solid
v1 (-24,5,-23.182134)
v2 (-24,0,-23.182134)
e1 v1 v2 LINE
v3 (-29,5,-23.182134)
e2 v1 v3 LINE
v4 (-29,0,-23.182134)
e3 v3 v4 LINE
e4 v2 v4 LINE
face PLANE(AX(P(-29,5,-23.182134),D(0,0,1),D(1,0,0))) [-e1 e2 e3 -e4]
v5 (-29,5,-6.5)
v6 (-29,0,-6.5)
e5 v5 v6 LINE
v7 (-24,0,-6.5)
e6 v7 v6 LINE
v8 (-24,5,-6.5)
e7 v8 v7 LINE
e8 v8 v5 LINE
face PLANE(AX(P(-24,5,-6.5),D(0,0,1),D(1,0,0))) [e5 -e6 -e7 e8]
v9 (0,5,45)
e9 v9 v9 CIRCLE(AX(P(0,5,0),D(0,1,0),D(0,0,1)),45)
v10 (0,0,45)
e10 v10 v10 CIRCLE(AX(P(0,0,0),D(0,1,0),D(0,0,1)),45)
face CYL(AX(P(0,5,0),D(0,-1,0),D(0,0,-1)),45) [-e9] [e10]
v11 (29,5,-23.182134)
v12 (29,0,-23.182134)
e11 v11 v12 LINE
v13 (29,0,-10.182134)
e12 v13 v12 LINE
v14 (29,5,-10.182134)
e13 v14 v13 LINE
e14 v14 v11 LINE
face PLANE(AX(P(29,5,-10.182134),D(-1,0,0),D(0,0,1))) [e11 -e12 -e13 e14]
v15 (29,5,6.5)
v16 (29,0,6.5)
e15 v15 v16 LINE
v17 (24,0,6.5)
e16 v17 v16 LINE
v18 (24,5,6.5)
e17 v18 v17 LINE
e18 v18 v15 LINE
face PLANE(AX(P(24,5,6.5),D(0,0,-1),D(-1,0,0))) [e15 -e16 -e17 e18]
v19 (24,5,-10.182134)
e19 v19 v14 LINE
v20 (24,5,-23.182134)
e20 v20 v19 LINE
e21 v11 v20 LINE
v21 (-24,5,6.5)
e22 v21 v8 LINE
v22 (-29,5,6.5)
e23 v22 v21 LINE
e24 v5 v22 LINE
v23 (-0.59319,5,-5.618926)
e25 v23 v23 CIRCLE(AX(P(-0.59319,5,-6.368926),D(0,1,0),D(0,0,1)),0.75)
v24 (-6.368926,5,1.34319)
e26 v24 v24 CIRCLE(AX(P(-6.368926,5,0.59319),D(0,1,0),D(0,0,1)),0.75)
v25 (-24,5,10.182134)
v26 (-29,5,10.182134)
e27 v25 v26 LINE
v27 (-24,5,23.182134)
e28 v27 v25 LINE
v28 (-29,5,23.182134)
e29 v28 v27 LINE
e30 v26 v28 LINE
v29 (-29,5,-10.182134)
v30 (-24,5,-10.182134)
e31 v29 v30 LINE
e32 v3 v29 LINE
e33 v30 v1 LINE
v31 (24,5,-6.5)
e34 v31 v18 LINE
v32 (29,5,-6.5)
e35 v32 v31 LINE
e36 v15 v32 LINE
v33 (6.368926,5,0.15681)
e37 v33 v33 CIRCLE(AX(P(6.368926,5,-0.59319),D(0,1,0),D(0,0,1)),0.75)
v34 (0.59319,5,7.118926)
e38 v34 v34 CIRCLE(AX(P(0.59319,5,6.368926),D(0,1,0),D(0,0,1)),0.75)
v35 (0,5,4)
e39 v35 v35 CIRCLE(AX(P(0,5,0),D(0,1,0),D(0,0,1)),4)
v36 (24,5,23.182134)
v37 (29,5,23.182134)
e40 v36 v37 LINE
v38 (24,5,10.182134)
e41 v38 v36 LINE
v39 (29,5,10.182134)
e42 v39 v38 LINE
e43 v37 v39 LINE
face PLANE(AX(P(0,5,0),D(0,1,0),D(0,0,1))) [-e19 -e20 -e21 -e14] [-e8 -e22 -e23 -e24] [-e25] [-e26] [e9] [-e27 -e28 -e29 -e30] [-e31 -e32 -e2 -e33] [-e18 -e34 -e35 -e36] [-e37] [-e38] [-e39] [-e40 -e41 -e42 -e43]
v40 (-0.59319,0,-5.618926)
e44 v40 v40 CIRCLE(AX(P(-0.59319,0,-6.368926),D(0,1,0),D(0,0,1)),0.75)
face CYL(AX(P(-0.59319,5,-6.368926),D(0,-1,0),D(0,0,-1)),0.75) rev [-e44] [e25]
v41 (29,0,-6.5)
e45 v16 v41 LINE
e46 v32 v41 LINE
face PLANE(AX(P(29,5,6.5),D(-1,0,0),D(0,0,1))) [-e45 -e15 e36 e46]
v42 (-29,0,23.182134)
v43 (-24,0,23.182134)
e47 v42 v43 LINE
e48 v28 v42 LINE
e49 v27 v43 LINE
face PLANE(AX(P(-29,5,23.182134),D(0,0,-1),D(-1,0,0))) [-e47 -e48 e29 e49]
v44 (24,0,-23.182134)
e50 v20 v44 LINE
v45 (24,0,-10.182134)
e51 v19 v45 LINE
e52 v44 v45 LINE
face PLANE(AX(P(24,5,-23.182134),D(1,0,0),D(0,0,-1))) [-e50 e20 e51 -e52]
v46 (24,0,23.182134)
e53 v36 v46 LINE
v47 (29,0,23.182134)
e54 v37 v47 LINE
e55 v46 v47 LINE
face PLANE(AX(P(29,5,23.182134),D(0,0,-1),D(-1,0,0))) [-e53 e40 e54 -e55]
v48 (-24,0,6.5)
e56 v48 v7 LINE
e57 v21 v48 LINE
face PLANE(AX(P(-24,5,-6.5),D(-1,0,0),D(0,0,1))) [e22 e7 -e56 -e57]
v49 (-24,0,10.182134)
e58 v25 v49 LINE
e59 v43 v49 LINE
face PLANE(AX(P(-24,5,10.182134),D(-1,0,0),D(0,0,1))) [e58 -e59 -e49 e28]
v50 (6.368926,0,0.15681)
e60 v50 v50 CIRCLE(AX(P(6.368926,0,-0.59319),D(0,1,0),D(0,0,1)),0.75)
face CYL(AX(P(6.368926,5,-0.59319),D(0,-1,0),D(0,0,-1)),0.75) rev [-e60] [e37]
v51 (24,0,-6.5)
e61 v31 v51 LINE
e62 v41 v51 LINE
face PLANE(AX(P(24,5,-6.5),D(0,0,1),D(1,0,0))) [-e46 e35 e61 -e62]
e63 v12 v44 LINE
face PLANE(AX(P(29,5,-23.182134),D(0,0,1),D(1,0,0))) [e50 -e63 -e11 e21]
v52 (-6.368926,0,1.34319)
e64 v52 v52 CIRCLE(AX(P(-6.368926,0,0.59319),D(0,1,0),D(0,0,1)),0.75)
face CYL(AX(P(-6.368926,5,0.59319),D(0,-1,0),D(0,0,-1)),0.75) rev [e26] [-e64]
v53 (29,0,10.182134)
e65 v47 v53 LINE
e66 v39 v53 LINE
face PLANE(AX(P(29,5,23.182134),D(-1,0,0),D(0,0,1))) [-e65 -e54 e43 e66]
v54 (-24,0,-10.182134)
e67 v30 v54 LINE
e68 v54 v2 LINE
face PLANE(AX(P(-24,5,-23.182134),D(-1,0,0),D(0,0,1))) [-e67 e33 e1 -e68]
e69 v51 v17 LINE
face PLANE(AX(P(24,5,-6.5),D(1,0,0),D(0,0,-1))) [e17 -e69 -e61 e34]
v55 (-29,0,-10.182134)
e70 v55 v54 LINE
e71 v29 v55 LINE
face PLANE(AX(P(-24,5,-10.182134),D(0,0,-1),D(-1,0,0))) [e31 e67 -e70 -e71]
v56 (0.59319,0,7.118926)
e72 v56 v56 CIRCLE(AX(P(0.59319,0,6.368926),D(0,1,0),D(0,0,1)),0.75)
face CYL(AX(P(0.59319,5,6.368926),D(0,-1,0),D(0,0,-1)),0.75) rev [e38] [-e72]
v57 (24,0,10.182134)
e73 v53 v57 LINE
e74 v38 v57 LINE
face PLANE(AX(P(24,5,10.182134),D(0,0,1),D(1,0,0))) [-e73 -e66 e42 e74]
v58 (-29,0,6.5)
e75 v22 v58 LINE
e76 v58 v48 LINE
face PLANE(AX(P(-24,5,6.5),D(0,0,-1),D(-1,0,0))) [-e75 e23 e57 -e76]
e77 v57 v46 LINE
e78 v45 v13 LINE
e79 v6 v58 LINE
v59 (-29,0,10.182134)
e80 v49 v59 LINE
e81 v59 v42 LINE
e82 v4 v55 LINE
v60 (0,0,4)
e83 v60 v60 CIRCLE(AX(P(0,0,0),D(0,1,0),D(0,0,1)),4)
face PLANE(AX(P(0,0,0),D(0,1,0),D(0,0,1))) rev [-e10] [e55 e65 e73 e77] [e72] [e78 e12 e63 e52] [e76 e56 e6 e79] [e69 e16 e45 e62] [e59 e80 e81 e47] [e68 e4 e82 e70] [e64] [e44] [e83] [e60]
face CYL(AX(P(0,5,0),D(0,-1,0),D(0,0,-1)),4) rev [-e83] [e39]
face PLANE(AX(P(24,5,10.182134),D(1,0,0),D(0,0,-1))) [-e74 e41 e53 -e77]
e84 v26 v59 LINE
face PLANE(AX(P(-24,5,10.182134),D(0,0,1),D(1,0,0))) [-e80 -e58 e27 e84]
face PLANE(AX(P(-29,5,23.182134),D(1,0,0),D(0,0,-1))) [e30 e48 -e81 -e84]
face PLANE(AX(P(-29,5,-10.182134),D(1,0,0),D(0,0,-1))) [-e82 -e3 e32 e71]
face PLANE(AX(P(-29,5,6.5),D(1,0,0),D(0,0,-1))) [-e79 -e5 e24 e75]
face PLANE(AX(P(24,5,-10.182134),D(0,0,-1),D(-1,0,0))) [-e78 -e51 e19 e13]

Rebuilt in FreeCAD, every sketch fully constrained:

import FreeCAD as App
import Part
import Sketcher
from FreeCAD import Vector


def add_polygon(sketch, points):
    """Adds a closed chain of lines whose ends are joined by coincident constraints."""
    first, n = sketch.GeometryCount, len(points)
    for a, b in zip(points, points[1:] + points[:1]):
        sketch.addGeometry(Part.LineSegment(App.Vector(*a, 0), App.Vector(*b, 0)), False)
    for i in range(n):
        sketch.addConstraint(Sketcher.Constraint("Coincident", first + i, 2, first + (i + 1) % n, 1))

doc = App.newDocument("Part")
params = doc.addObject("Spreadsheet::Sheet", "Params")
for row, (alias, value) in enumerate([
    ("sketch1_diameter", "90 mm"),
    ("sketch1_diameter2", "8 mm"),
    ("sketch1_diameter3", "1.5 mm"),
    ("sketch1_width", "5 mm"),
    ("sketch1_height", "13 mm"),
    ("pad1_length", "5 mm"),
], start=1):
    params.set(f"A{row}", alias)
    params.set(f"B{row}", "=" + value)
    params.setAlias(f"B{row}", alias)

body = doc.addObject("PartDesign::Body", "Body")

sketch1 = doc.addObject("Sketcher::SketchObject", "Sketch")
body.addObject(sketch1)
sketch1.AttachmentSupport = (doc.XZ_Plane, [""])
sketch1.MapMode = "FlatFace"
sketch1.addGeometry(Part.Circle(Vector(0, 0, 0), Vector(0, 0, 1), 45), False)
add_polygon(sketch1, [(-24, 23.2), (-29, 23.2), (-29, 10.2), (-24, 10.2)])
add_polygon(sketch1, [(-24, 6.5), (-29, 6.5), (-29, -6.5), (-24, -6.5)])
sketch1.addGeometry(Part.Circle(Vector(-6.4, 0.6, 0), Vector(0, 0, 1), 0.8), False)
add_polygon(sketch1, [(29, 23.2), (24, 23.2), (24, 10.2), (29, 10.2)])
sketch1.addGeometry(Part.Circle(Vector(0.6, 6.4, 0), Vector(0, 0, 1), 0.8), False)
sketch1.addGeometry(Part.Circle(Vector(0, 0, 0), Vector(0, 0, 1), 4), False)
add_polygon(sketch1, [(29, 6.5), (24, 6.5), (24, -6.5), (29, -6.5)])
sketch1.addGeometry(Part.Circle(Vector(-0.6, -6.4, 0), Vector(0, 0, 1), 0.8), False)
add_polygon(sketch1, [(-24, -10.2), (-29, -10.2), (-29, -23.2), (-24, -23.2)])
sketch1.addGeometry(Part.Circle(Vector(6.4, -0.6, 0), Vector(0, 0, 1), 0.8), False)
add_polygon(sketch1, [(29, -10.2), (24, -10.2), (24, -23.2), (29, -23.2)])
sketch1.addConstraint([
    Sketcher.Constraint("Horizontal", 1),
    Sketcher.Constraint("Vertical", 2),
    Sketcher.Constraint("Horizontal", 3),
    Sketcher.Constraint("Vertical", 4),
    Sketcher.Constraint("Horizontal", 5),
    Sketcher.Constraint("Vertical", 6),
    Sketcher.Constraint("Horizontal", 7),
    Sketcher.Constraint("Vertical", 8),
    Sketcher.Constraint("Horizontal", 10),
    Sketcher.Constraint("Vertical", 11),
    Sketcher.Constraint("Horizontal", 12),
    Sketcher.Constraint("Vertical", 13),
    Sketcher.Constraint("Horizontal", 16),
    Sketcher.Constraint("Vertical", 17),
    Sketcher.Constraint("Horizontal", 18),
    Sketcher.Constraint("Vertical", 19),
    Sketcher.Constraint("Horizontal", 21),
    Sketcher.Constraint("Vertical", 22),
    Sketcher.Constraint("Horizontal", 23),
    Sketcher.Constraint("Vertical", 24),
    Sketcher.Constraint("Horizontal", 26),
    Sketcher.Constraint("Vertical", 27),
    Sketcher.Constraint("Horizontal", 28),
    Sketcher.Constraint("Vertical", 29),
    Sketcher.Constraint("Coincident", 0, 3, -1, 1),
    Sketcher.Constraint("Coincident", 15, 3, -1, 1),
    Sketcher.Constraint("Equal", 9, 14),
    Sketcher.Constraint("Equal", 14, 20),
    Sketcher.Constraint("Equal", 20, 25),
    Sketcher.Constraint("Symmetric", 14, 3, 20, 3, -1, 1),
    Sketcher.Constraint("Symmetric", 9, 3, 25, 3, -1, 1),
    Sketcher.Constraint("Symmetric", 7, 2, 16, 2, -1, 1),
    Sketcher.Constraint("Symmetric", 5, 2, 18, 2, -1, 1),
    Sketcher.Constraint("Symmetric", 12, 2, 21, 2, -1, 1),
    Sketcher.Constraint("Symmetric", 10, 2, 23, 2, -1, 1),
    Sketcher.Constraint("Symmetric", 3, 2, 26, 2, -1, 1),
    Sketcher.Constraint("Symmetric", 1, 2, 28, 2, -1, 1),
    Sketcher.Constraint("Symmetric", 4, 2, 10, 2, -2),
    Sketcher.Constraint("Symmetric", 2, 2, 12, 2, -2),
    Sketcher.Constraint("Horizontal", 8, 2, 16, 2),
    Sketcher.Constraint("Vertical", 2, 2, 5, 2),
    Sketcher.Constraint("Vertical", 4, 2, 7, 2),
    Sketcher.Constraint("Equal", 4, 6),
    Sketcher.Constraint("Diameter", 0, 90.0),
    Sketcher.Constraint("Diameter", 15, 8.0),
    Sketcher.Constraint("Diameter", 9, 1.5),
    Sketcher.Constraint("DistanceX", 1, 2, 1, 1, 5.0),
    Sketcher.Constraint("DistanceY", 2, 2, 2, 1, 13.0),
    Sketcher.Constraint("DistanceX", 1, 2, -1, 1, 29.0),
    Sketcher.Constraint("DistanceY", -1, 1, 9, 3, 0.59319),
    Sketcher.Constraint("DistanceX", -1, 1, 14, 3, 0.59319),
    Sketcher.Constraint("DistanceY", 20, 3, 14, 3, 12.737851),
    Sketcher.Constraint("DistanceX", 9, 3, 25, 3, 12.737851),
    Sketcher.Constraint("DistanceY", 14, 3, 1, 2, 16.813209),
])
sketch1.setExpression("Constraints[67]", "Params.sketch1_diameter")
sketch1.setExpression("Constraints[68]", "Params.sketch1_diameter2")
sketch1.setExpression("Constraints[69]", "Params.sketch1_diameter3")
sketch1.setExpression("Constraints[70]", "Params.sketch1_width")
sketch1.setExpression("Constraints[71]", "Params.sketch1_height")
pad1 = doc.addObject("PartDesign::Pad", "Pad")
body.addObject(pad1)
pad1.Profile = sketch1
pad1.setExpression("Length", "Params.pad1_length")
pad1.Reversed = True

doc.recompute()
